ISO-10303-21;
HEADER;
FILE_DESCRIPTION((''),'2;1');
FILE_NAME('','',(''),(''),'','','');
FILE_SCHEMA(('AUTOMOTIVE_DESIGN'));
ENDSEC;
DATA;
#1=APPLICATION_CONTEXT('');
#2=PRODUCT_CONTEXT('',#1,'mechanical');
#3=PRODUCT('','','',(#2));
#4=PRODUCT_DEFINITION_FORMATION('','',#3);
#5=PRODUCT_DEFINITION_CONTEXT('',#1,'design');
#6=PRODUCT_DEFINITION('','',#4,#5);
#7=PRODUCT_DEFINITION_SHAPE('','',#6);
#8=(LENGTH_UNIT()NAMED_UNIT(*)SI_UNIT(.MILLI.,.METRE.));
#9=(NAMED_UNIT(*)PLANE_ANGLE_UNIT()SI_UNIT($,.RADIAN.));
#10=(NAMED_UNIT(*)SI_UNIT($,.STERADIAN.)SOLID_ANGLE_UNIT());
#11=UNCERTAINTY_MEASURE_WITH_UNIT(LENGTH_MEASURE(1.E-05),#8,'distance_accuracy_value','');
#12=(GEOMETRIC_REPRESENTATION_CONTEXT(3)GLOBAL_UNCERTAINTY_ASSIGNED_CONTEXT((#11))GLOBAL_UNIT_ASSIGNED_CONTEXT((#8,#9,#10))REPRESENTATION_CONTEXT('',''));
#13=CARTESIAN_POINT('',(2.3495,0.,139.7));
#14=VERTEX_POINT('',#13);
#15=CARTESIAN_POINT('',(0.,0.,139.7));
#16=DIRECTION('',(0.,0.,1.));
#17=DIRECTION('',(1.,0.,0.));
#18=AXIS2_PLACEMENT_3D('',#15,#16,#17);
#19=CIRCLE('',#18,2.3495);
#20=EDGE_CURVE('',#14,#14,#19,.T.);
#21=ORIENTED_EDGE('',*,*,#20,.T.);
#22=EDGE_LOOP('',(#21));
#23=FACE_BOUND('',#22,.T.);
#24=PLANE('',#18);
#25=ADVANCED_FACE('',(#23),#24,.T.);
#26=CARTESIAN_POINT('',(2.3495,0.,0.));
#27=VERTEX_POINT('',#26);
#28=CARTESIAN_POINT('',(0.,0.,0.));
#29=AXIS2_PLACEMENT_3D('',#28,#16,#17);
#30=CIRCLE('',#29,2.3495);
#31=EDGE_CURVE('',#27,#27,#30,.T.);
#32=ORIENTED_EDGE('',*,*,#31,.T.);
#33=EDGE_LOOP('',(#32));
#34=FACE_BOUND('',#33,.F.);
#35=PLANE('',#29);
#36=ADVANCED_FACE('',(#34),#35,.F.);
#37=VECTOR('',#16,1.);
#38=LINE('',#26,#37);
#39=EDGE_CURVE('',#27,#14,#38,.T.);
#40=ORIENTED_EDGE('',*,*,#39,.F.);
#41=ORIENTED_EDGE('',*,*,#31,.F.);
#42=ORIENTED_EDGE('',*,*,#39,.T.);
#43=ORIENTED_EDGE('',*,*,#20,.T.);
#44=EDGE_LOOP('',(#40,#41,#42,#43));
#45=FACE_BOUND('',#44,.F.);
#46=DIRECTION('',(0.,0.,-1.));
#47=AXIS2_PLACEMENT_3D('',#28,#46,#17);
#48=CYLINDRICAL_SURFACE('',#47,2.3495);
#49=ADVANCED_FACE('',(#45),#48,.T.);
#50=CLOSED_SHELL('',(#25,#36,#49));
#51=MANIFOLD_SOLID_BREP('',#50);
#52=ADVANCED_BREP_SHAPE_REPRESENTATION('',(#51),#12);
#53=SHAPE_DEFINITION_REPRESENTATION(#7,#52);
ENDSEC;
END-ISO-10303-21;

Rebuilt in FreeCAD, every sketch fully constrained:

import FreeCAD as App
import Part
import Sketcher

V = App.Vector
Q = App.Units.Quantity

doc = App.newDocument("Part")
body = doc.addObject("PartDesign::Body", "Body")

sketch1 = body.newObject("Sketcher::SketchObject", "Sketch")
sketch1.AttachmentSupport = (doc.getObject("XY_Plane"), [""])
sketch1.MapMode = "FlatFace"
sketch1.addGeometry(Part.Circle(V(0, 0, 0), V(0, 0, 1), 2.3), False)
sketch1.addConstraint(Sketcher.Constraint("Coincident", 0, 3, -1, 1))
sketch1.addConstraint(Sketcher.Constraint("Diameter", 0, Q("0.185 in")))
pad1 = body.newObject("PartDesign::Pad", "Pad")
pad1.Profile = sketch1
pad1.Length = Q("5.5 in")

doc.recompute()
